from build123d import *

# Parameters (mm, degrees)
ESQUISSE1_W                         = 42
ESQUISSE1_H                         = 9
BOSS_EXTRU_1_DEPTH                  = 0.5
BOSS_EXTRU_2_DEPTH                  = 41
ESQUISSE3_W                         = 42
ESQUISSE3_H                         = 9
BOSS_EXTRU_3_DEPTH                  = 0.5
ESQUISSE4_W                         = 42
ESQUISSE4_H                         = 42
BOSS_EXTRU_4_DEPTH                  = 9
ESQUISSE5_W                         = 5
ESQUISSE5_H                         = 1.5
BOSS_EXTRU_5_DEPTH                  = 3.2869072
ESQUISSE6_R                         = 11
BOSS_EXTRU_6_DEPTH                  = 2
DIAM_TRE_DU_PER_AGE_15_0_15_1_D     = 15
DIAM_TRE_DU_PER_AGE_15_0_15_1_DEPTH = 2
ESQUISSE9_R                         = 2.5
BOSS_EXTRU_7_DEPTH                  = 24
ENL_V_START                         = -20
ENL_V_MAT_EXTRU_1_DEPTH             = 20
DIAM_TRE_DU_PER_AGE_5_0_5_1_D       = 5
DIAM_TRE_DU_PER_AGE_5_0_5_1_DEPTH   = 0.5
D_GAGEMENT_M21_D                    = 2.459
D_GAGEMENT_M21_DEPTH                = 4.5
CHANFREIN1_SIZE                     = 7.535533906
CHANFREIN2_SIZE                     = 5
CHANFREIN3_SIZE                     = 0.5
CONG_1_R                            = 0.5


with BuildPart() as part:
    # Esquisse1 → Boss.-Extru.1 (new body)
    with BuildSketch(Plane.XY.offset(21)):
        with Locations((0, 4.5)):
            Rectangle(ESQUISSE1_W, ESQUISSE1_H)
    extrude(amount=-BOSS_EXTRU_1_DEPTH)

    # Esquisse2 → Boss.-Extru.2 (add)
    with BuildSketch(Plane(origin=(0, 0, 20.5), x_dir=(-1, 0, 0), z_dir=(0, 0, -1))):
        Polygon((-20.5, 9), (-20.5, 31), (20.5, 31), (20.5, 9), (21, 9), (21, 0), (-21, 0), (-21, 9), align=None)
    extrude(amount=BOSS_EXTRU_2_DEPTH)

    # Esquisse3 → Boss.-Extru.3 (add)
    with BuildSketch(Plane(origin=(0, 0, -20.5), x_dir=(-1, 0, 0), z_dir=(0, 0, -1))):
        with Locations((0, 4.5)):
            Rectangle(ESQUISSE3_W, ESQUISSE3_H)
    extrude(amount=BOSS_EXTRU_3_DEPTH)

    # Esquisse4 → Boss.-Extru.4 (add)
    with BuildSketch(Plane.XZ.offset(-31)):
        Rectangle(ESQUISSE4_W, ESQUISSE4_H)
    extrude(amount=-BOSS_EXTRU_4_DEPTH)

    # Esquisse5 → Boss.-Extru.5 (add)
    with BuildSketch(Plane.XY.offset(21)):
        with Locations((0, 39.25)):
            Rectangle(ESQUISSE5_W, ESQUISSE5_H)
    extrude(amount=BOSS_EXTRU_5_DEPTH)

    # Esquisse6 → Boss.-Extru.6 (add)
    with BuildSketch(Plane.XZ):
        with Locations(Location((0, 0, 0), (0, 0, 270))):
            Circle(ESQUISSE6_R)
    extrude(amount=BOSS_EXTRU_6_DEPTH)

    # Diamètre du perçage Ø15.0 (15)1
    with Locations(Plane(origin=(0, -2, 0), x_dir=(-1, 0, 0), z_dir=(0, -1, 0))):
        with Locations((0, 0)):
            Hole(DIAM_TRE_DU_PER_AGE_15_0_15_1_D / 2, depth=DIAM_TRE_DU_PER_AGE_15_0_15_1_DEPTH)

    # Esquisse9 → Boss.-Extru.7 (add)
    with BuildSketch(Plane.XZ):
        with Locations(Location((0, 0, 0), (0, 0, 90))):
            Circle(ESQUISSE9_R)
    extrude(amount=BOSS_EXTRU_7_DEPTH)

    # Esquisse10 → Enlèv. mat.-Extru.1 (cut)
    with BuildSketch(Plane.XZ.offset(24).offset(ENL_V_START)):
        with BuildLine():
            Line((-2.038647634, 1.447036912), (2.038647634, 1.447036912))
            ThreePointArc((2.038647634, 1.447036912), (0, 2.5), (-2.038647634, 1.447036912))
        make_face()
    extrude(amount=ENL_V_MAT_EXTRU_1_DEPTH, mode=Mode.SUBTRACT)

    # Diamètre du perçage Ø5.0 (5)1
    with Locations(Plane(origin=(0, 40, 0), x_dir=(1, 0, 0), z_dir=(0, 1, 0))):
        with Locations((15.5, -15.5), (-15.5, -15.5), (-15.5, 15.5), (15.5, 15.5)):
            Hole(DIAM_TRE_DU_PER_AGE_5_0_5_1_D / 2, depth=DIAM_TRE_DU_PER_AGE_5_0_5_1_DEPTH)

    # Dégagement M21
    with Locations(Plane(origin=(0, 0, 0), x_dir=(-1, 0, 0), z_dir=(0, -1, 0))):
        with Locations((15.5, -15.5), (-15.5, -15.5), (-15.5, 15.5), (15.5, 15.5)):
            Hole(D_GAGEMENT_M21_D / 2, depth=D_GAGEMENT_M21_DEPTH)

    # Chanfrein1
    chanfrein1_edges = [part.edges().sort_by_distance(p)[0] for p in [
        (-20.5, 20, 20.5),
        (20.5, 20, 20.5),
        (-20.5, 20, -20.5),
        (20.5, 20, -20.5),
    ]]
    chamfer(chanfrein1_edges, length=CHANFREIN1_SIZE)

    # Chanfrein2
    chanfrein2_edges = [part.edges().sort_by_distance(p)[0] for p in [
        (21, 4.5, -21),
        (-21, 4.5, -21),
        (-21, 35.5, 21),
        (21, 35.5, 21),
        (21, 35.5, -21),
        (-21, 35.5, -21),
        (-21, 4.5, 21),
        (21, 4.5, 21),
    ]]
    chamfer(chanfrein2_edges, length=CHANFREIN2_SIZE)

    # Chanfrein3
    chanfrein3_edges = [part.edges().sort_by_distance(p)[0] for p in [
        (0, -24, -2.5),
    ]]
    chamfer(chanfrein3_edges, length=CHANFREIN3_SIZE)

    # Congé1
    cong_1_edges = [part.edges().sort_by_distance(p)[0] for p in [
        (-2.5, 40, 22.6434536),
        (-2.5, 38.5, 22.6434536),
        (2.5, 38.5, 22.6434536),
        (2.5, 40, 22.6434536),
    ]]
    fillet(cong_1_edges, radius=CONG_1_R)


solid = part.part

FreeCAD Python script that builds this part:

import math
import FreeCAD as App
import Part
import Sketcher
from FreeCAD import Vector
Q = App.Units.Quantity


def edges_at(feature, points):
    """Names of the edges that pass closest to the given points."""
    edges = feature.Shape.Edges
    near = lambda p: min(range(len(edges)), key=lambda i: edges[i].distToShape(Part.Vertex(*p))[0])
    return sorted({f"Edge{near(p) + 1}" for p in points})


def add_polygon(sketch, points):
    """Adds a closed chain of lines whose ends are joined by coincident constraints."""
    first, n = sketch.GeometryCount, len(points)
    for a, b in zip(points, points[1:] + points[:1]):
        sketch.addGeometry(Part.LineSegment(App.Vector(*a, 0), App.Vector(*b, 0)), False)
    for i in range(n):
        sketch.addConstraint(Sketcher.Constraint("Coincident", first + i, 2, first + (i + 1) % n, 1))

doc = App.newDocument("Part")
body = doc.addObject("PartDesign::Body", "Body")

# Sketch on XY plane
sketch1 = body.newObject("Sketcher::SketchObject", "Sketch")
sketch1.AttachmentSupport = (doc.getObject("XY_Plane"), [""])
sketch1.MapMode = "FlatFace"
sketch1.AttachmentOffset = App.Placement(Vector(0, 0, 21), App.Rotation())
add_polygon(sketch1, [(-21, 9), (-21, 0), (21, 0), (21, 9)])  # lines 0-3
sketch1.addConstraint([
    Sketcher.Constraint("Vertical", 0),
    Sketcher.Constraint("Horizontal", 1),
    Sketcher.Constraint("Vertical", 2),
    Sketcher.Constraint("Horizontal", 3),
    Sketcher.Constraint("Symmetric", 0, 2, 1, 2, -1, 1),
    Sketcher.Constraint("DistanceX", 1, 1, 1, 2, Q("42 mm")),
    Sketcher.Constraint("DistanceY", 0, 2, 0, 1, Q("9 mm")),
])
pad1 = body.newObject("PartDesign::Pad", "Pad")
pad1.Profile = sketch1
pad1.Length = 0.5
pad1.Reversed = True

# Sketch on XY plane
sketch2 = body.newObject("Sketcher::SketchObject", "Sketch001")
sketch2.AttachmentSupport = (doc.getObject("XY_Plane"), [""])
sketch2.MapMode = "FlatFace"
sketch2.AttachmentOffset = App.Placement(Vector(0, 0, 20.5), App.Rotation())
add_polygon(sketch2, [(20.5, 31), (20.5, 9), (21, 9), (21, 0), (-21, 0), (-21, 9), (-20.5, 9), (-20.5, 31)])  # lines 0-7
sketch2.addConstraint([
    Sketcher.Constraint("Vertical", 0),
    Sketcher.Constraint("Horizontal", 1),
    Sketcher.Constraint("Vertical", 2),
    Sketcher.Constraint("Horizontal", 3),
    Sketcher.Constraint("Vertical", 4),
    Sketcher.Constraint("Horizontal", 5),
    Sketcher.Constraint("Vertical", 6),
    Sketcher.Constraint("Horizontal", 7),
    Sketcher.Constraint("Symmetric", 2, 2, 3, 2, -1, 1),
    Sketcher.Constraint("Symmetric", 0, 2, 5, 2, -2),
    Sketcher.Constraint("DistanceX", 3, 2, 3, 1, Q("42 mm")),
    Sketcher.Constraint("DistanceX", 7, 1, 7, 2, Q("41 mm")),
    Sketcher.Constraint("DistanceY", 0, 2, 0, 1, Q("22 mm")),
    Sketcher.Constraint("DistanceY", 2, 2, 2, 1, Q("9 mm")),
])
pad2 = body.newObject("PartDesign::Pad", "Pad001")
pad2.Profile = sketch2
pad2.Length = 41
pad2.Reversed = True

# Sketch on XY plane
sketch3 = body.newObject("Sketcher::SketchObject", "Sketch002")
sketch3.AttachmentSupport = (doc.getObject("XY_Plane"), [""])
sketch3.MapMode = "FlatFace"
sketch3.AttachmentOffset = App.Placement(Vector(0, 0, -20.5), App.Rotation())
add_polygon(sketch3, [(21, 9), (21, 0), (-21, 0), (-21, 9)])  # lines 0-3
sketch3.addConstraint([
    Sketcher.Constraint("Vertical", 0),
    Sketcher.Constraint("Horizontal", 1),
    Sketcher.Constraint("Vertical", 2),
    Sketcher.Constraint("Horizontal", 3),
    Sketcher.Constraint("Symmetric", 0, 2, 1, 2, -1, 1),
    Sketcher.Constraint("DistanceX", 1, 2, 1, 1, Q("42 mm")),
    Sketcher.Constraint("DistanceY", 0, 2, 0, 1, Q("9 mm")),
])
pad3 = body.newObject("PartDesign::Pad", "Pad002")
pad3.Profile = sketch3
pad3.Length = 0.5
pad3.Reversed = True

# Sketch on XZ plane
sketch4 = body.newObject("Sketcher::SketchObject", "Sketch003")
sketch4.AttachmentSupport = (doc.getObject("XZ_Plane"), [""])
sketch4.MapMode = "FlatFace"
sketch4.AttachmentOffset = App.Placement(Vector(0, 0, -31), App.Rotation())
add_polygon(sketch4, [(-21, 21), (-21, -21), (21, -21), (21, 21)])  # lines 0-3
sketch4.addConstraint([
    Sketcher.Constraint("Vertical", 0),
    Sketcher.Constraint("Horizontal", 1),
    Sketcher.Constraint("Vertical", 2),
    Sketcher.Constraint("Horizontal", 3),
    Sketcher.Constraint("Symmetric", 0, 2, 2, 2, -1, 1),
    Sketcher.Constraint("Equal", 3, 0),
    Sketcher.Constraint("DistanceX", 1, 1, 1, 2, Q("42 mm")),
])
pad4 = body.newObject("PartDesign::Pad", "Pad003")
pad4.Profile = sketch4
pad4.Length = 9
pad4.Reversed = True

# Sketch on XY plane
sketch5 = body.newObject("Sketcher::SketchObject", "Sketch004")
sketch5.AttachmentSupport = (doc.getObject("XY_Plane"), [""])
sketch5.MapMode = "FlatFace"
sketch5.AttachmentOffset = App.Placement(Vector(0, 0, 21), App.Rotation())
add_polygon(sketch5, [(-2.5, 40), (-2.5, 38.5), (2.5, 38.5), (2.5, 40)])  # lines 0-3
sketch5.addConstraint([
    Sketcher.Constraint("Vertical", 0),
    Sketcher.Constraint("Horizontal", 1),
    Sketcher.Constraint("Vertical", 2),
    Sketcher.Constraint("Horizontal", 3),
    Sketcher.Constraint("DistanceX", 1, 1, 1, 2, Q("5 mm")),
    Sketcher.Constraint("DistanceY", 0, 2, 0, 1, Q("1.5 mm")),
    Sketcher.Constraint("DistanceY", -1, 1, 2, 2, Q("40 mm")),
    Sketcher.Constraint("DistanceX", 0, 2, -1, 1, Q("2.5 mm")),
])
pad5 = body.newObject("PartDesign::Pad", "Pad004")
pad5.Profile = sketch5
pad5.Length = 3.286907

# Sketch on XZ plane
sketch6 = body.newObject("Sketcher::SketchObject", "Sketch005")
sketch6.AttachmentSupport = (doc.getObject("XZ_Plane"), [""])
sketch6.MapMode = "FlatFace"
sketch6.addGeometry(Part.Circle(Vector(0, 0, 0), Vector(0, 0, 1), 11), False)
sketch6.addConstraint([
    Sketcher.Constraint("Coincident", 0, 3, -1, 1),
    Sketcher.Constraint("Diameter", 0, Q("22 mm")),
])
pad6 = body.newObject("PartDesign::Pad", "Pad005")
pad6.Profile = sketch6
pad6.Length = 2

# Sketch on XZ plane
sketch7 = body.newObject("Sketcher::SketchObject", "Sketch006")
sketch7.AttachmentSupport = (doc.getObject("XZ_Plane"), [""])
sketch7.MapMode = "FlatFace"
sketch7.AttachmentOffset = App.Placement(Vector(0, 0, 2), App.Rotation())
sketch7.addGeometry(Part.Circle(Vector(0, 0, 0), Vector(0, 0, 1), 8), False)
sketch7.addConstraint([
    Sketcher.Constraint("Coincident", 0, 3, -1, 1),
    Sketcher.Constraint("Diameter", 0, Q("15 mm")),
])
doc.recompute()
hole = body.newObject("PartDesign::Hole", "Hole")
hole.Profile = sketch7
hole.ThreadType = "None"
hole.Diameter = 15
hole.DepthType = "Dimension"
hole.Depth = 2
hole.DrillPoint = "Flat"

# Sketch on XZ plane
sketch8 = body.newObject("Sketcher::SketchObject", "Sketch007")
sketch8.AttachmentSupport = (doc.getObject("XZ_Plane"), [""])
sketch8.MapMode = "FlatFace"
sketch8.addGeometry(Part.Circle(Vector(0, 0, 0), Vector(0, 0, 1), 2.5), False)
sketch8.addConstraint([
    Sketcher.Constraint("Coincident", 0, 3, -1, 1),
    Sketcher.Constraint("Diameter", 0, Q("5 mm")),
])
pad7 = body.newObject("PartDesign::Pad", "Pad006")
pad7.Profile = sketch8
pad7.Length = 24

# Sketch on XZ plane
sketch9 = body.newObject("Sketcher::SketchObject", "Sketch008")
sketch9.AttachmentSupport = (doc.getObject("XZ_Plane"), [""])
sketch9.MapMode = "FlatFace"
sketch9.AttachmentOffset = App.Placement(Vector(0, 0, 4), App.Rotation())
sketch9.addGeometry([
    Part.LineSegment(Vector(-2, 1.4, 0), Vector(2, 1.4, 0)),
    Part.ArcOfCircle(Part.Circle(Vector(0, 0, 0), Vector(0, 0, 1), 2.5), math.radians(35), math.radians(145)),
], False)
sketch9.addConstraint([
    Sketcher.Constraint("Coincident", 0, 1, 1, 2),
    Sketcher.Constraint("Coincident", 1, 1, 0, 2),
    Sketcher.Constraint("Horizontal", 0),
    Sketcher.Constraint("Coincident", 1, 3, -1, 1),
    Sketcher.Constraint("Radius", 1, Q("2.5 mm")),
    Sketcher.Constraint("DistanceX", 0, 1, 0, 2, Q("4.077295 mm")),
])
pocket1 = body.newObject("PartDesign::Pocket", "Pocket")
pocket1.Profile = sketch9
pocket1.Length = 20
pocket1.Reversed = True

# Sketch on XZ plane
sketch10 = body.newObject("Sketcher::SketchObject", "Sketch009")
sketch10.AttachmentSupport = (doc.getObject("XZ_Plane"), [""])
sketch10.MapMode = "FlatFace"
sketch10.AttachmentOffset = App.Placement(Vector(0, 0, -40), App.Rotation())
sketch10.addGeometry([
    Part.Circle(Vector(15.5, 15.5, 0), Vector(0, 0, 1), 2.5),
    Part.Circle(Vector(-15.5, 15.5, 0), Vector(0, 0, 1), 2.5),
    Part.Circle(Vector(-15.5, -15.5, 0), Vector(0, 0, 1), 2.5),
    Part.Circle(Vector(15.5, -15.5, 0), Vector(0, 0, 1), 2.5),
], False)
sketch10.addConstraint([
    Sketcher.Constraint("Equal", 0, 1),
    Sketcher.Constraint("Equal", 1, 2),
    Sketcher.Constraint("Equal", 2, 3),
    Sketcher.Constraint("Symmetric", 0, 3, 2, 3, -1, 1),
    Sketcher.Constraint("Symmetric", 1, 3, 3, 3, -1, 1),
    Sketcher.Constraint("Symmetric", 0, 3, 1, 3, -2),
    Sketcher.Constraint("Diameter", 0, Q("5 mm")),
    Sketcher.Constraint("DistanceX", 1, 3, 0, 3, Q("31 mm")),
    Sketcher.Constraint("DistanceY", 2, 3, 1, 3, Q("31 mm")),
])
doc.recompute()
hole2 = body.newObject("PartDesign::Hole", "Hole001")
hole2.Profile = sketch10
hole2.ThreadType = "None"
hole2.Diameter = 5
hole2.DepthType = "Dimension"
hole2.Depth = 0.5
hole2.DrillPoint = "Flat"
hole2.Reversed = True

# Sketch on XZ plane
sketch11 = body.newObject("Sketcher::SketchObject", "Sketch010")
sketch11.AttachmentSupport = (doc.getObject("XZ_Plane"), [""])
sketch11.MapMode = "FlatFace"
sketch11.addGeometry([
    Part.Circle(Vector(-15.5, 15.5, 0), Vector(0, 0, 1), 1.2),
    Part.Circle(Vector(15.5, 15.5, 0), Vector(0, 0, 1), 1.2),
    Part.Circle(Vector(15.5, -15.5, 0), Vector(0, 0, 1), 1.2),
    Part.Circle(Vector(-15.5, -15.5, 0), Vector(0, 0, 1), 1.2),
], False)
sketch11.addConstraint([
    Sketcher.Constraint("Equal", 0, 1),
    Sketcher.Constraint("Equal", 1, 2),
    Sketcher.Constraint("Equal", 2, 3),
    Sketcher.Constraint("Symmetric", 0, 3, 2, 3, -1, 1),
    Sketcher.Constraint("Symmetric", 1, 3, 3, 3, -1, 1),
    Sketcher.Constraint("Symmetric", 0, 3, 1, 3, -2),
    Sketcher.Constraint("Diameter", 0, Q("2.459 mm")),
    Sketcher.Constraint("DistanceX", 0, 3, 1, 3, Q("31 mm")),
    Sketcher.Constraint("DistanceY", 2, 3, 1, 3, Q("31 mm")),
])
doc.recompute()
hole3 = body.newObject("PartDesign::Hole", "Hole002")
hole3.Profile = sketch11
hole3.ThreadType = "None"
hole3.Diameter = 2.459
hole3.DepthType = "Dimension"
hole3.Depth = 4.5
hole3.DrillPoint = "Flat"
doc.recompute()

chamfer = body.newObject("PartDesign::Chamfer", "Chamfer")
chamfer.Base = (hole3, edges_at(hole3, [
    (-20.5, 20, 20.5),
    (20.5, 20, 20.5),
    (-20.5, 20, -20.5),
    (20.5, 20, -20.5),
]))
chamfer.Size = 7.535534
doc.recompute()

chamfer2 = body.newObject("PartDesign::Chamfer", "Chamfer001")
chamfer2.Base = (chamfer, edges_at(chamfer, [
    (21, 4.5, -21),
    (-21, 4.5, -21),
    (-21, 35.5, 21),
    (21, 35.5, 21),
    (21, 35.5, -21),
    (-21, 35.5, -21),
    (-21, 4.5, 21),
    (21, 4.5, 21),
]))
chamfer2.Size = 5
doc.recompute()

chamfer3 = body.newObject("PartDesign::Chamfer", "Chamfer002")
chamfer3.Base = (chamfer2, edges_at(chamfer2, [(0, -24, -2.5)]))
chamfer3.Size = 0.5
doc.recompute()

fillet = body.newObject("PartDesign::Fillet", "Fillet")
fillet.Base = (chamfer3, edges_at(chamfer3, [
    (-2.5, 40, 22.643),
    (-2.5, 38.5, 22.643),
    (2.5, 38.5, 22.643),
    (2.5, 40, 22.643),
]))
fillet.Radius = 0.5

doc.recompute()
